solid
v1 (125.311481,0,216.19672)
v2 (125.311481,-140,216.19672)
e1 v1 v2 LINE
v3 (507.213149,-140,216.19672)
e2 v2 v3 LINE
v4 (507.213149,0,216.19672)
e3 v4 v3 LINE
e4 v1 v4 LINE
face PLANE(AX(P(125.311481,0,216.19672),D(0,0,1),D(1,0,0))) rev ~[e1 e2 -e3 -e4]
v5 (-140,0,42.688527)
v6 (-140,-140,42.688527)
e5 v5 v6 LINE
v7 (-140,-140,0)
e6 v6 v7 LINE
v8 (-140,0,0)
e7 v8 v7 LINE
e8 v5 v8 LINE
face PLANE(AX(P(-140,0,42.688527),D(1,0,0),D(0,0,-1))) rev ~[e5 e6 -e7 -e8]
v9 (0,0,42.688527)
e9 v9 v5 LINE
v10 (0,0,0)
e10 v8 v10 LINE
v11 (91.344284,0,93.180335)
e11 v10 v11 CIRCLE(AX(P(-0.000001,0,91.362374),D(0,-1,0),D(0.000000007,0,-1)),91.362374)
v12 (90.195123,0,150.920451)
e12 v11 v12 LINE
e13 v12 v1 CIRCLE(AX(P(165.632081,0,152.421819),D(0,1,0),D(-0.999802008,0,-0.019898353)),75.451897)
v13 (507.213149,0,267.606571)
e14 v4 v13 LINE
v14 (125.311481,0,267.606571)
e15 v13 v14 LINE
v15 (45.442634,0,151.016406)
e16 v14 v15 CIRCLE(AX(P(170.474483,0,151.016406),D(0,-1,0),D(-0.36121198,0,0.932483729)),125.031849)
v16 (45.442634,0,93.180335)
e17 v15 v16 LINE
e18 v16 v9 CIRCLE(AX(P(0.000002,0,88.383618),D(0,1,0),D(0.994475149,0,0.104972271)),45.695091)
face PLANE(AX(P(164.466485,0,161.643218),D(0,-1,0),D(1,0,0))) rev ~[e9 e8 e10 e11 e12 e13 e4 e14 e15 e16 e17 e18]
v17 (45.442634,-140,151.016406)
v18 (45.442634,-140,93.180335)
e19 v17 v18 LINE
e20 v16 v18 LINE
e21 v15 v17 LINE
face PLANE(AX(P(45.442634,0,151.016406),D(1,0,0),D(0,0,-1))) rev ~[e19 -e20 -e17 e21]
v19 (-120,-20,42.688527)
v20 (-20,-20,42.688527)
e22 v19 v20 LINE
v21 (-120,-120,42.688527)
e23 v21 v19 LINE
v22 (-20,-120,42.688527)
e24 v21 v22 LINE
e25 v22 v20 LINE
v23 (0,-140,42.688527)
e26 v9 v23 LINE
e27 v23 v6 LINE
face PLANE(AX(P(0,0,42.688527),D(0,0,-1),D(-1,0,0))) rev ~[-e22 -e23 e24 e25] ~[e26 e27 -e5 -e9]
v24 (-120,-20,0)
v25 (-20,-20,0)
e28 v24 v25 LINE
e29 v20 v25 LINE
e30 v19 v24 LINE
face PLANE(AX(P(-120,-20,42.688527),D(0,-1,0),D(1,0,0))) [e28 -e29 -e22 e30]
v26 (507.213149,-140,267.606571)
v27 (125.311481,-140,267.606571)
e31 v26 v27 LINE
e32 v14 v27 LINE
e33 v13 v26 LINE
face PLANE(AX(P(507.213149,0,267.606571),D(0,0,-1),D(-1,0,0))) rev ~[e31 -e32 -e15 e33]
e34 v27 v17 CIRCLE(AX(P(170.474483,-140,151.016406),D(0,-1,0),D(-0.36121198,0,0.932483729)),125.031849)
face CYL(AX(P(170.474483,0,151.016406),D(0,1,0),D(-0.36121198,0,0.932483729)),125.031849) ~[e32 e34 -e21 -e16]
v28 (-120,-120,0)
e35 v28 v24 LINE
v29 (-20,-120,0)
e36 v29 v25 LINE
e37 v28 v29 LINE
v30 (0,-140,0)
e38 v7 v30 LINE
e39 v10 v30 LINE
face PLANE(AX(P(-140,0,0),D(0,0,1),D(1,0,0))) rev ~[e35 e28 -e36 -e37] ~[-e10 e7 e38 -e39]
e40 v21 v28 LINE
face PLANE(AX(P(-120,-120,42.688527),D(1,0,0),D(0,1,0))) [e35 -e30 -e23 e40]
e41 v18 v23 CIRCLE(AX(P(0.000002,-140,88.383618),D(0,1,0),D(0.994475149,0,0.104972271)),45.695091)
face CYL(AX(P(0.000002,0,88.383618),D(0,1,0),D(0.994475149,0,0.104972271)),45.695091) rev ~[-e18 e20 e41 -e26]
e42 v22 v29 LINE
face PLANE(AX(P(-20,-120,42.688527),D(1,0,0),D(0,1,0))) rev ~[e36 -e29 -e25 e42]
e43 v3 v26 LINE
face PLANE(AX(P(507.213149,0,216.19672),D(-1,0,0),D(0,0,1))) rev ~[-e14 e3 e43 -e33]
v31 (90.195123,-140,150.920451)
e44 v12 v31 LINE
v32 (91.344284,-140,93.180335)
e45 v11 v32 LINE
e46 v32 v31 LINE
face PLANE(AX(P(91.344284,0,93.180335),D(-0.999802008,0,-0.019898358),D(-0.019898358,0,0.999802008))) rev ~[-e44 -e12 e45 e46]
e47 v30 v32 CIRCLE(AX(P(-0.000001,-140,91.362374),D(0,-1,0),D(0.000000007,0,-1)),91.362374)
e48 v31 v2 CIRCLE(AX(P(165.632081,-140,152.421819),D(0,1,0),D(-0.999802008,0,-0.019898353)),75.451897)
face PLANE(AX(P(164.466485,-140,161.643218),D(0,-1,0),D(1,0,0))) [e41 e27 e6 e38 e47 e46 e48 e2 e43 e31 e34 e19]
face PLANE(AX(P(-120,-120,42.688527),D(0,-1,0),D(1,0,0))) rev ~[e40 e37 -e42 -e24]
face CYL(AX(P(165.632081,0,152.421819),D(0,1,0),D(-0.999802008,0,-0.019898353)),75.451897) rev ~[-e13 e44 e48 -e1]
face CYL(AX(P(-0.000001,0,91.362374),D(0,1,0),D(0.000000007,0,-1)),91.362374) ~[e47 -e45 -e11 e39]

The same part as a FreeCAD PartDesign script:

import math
import FreeCAD as App
import Part
import Sketcher


def add_polygon(sketch, points):
    """Adds a closed chain of lines whose ends are joined by coincident constraints."""
    first, n = sketch.GeometryCount, len(points)
    for a, b in zip(points, points[1:] + points[:1]):
        sketch.addGeometry(Part.LineSegment(App.Vector(*a, 0), App.Vector(*b, 0)), False)
    for i in range(n):
        sketch.addConstraint(Sketcher.Constraint("Coincident", first + i, 2, first + (i + 1) % n, 1))

doc = App.newDocument("Part")
body = doc.addObject("PartDesign::Body", "Body")

sketch1 = body.newObject("Sketcher::SketchObject", "Sketch")
sketch1.AttachmentSupport = (doc.getObject("XZ_Plane"), [""])
sketch1.MapMode = "FlatFace"
sketch1.addGeometry(Part.LineSegment(App.Vector(0, 42.688527, 0), App.Vector(-140, 42.688527, 0)), False)
sketch1.addGeometry(Part.LineSegment(App.Vector(-140, 42.688527, 0), App.Vector(-140, 0, 0)), False)
sketch1.addGeometry(Part.LineSegment(App.Vector(-140, 0, 0), App.Vector(0, 0, 0)), False)
sketch1.addGeometry(Part.ArcOfCircle(Part.Circle(App.Vector(-0.000001, 91.362374, 0), App.Vector(0, 0, 1), 91.362374), math.radians(-90), math.radians(1.140167)), False)
sketch1.addGeometry(Part.LineSegment(App.Vector(91.344284, 93.180335, 0), App.Vector(90.195123, 150.920451, 0)), False)
sketch1.addGeometry(Part.ArcOfCircle(Part.Circle(App.Vector(165.632081, 152.421819, 0), App.Vector(0, 0, 1), 75.451897), math.radians(122.302427), math.radians(181.140167)), False)
sketch1.addGeometry(Part.LineSegment(App.Vector(125.311481, 216.19672, 0), App.Vector(507.213149, 216.19672, 0)), False)
sketch1.addGeometry(Part.LineSegment(App.Vector(507.213149, 216.19672, 0), App.Vector(507.213149, 267.606571, 0)), False)
sketch1.addGeometry(Part.LineSegment(App.Vector(507.213149, 267.606571, 0), App.Vector(125.311481, 267.606571, 0)), False)
sketch1.addGeometry(Part.ArcOfCircle(Part.Circle(App.Vector(170.474483, 151.016406, 0), App.Vector(0, 0, 1), 125.031849), math.radians(111.174647), math.radians(180)), False)
sketch1.addGeometry(Part.LineSegment(App.Vector(45.442634, 151.016406, 0), App.Vector(45.442634, 93.180335, 0)), False)
sketch1.addGeometry(Part.ArcOfCircle(Part.Circle(App.Vector(0.000002, 88.383618, 0), App.Vector(0, 0, 1), 45.695091), math.radians(-90.000002), math.radians(6.025569)), False)
sketch1.addConstraint(Sketcher.Constraint("Coincident", 0, 2, 1, 1))
sketch1.addConstraint(Sketcher.Constraint("Coincident", 1, 2, 2, 1))
sketch1.addConstraint(Sketcher.Constraint("Tangent", 2, 2, 3, 1))
sketch1.addConstraint(Sketcher.Constraint("Tangent", 3, 2, 4, 1))
sketch1.addConstraint(Sketcher.Constraint("Tangent", 4, 2, 5, 2))
sketch1.addConstraint(Sketcher.Constraint("Coincident", 5, 1, 6, 1))
sketch1.addConstraint(Sketcher.Constraint("Coincident", 6, 2, 7, 1))
sketch1.addConstraint(Sketcher.Constraint("Coincident", 7, 2, 8, 1))
sketch1.addConstraint(Sketcher.Constraint("Coincident", 8, 2, 9, 1))
sketch1.addConstraint(Sketcher.Constraint("Tangent", 9, 2, 10, 1))
sketch1.addConstraint(Sketcher.Constraint("Coincident", 10, 2, 11, 2))
sketch1.addConstraint(Sketcher.Constraint("Tangent", 11, 1, 0, 1))
sketch1.addConstraint(Sketcher.Constraint("Horizontal", 0))
sketch1.addConstraint(Sketcher.Constraint("Vertical", 1))
sketch1.addConstraint(Sketcher.Constraint("Horizontal", 2))
sketch1.addConstraint(Sketcher.Constraint("Horizontal", 6))
sketch1.addConstraint(Sketcher.Constraint("Vertical", 7))
sketch1.addConstraint(Sketcher.Constraint("Horizontal", 8))
sketch1.addConstraint(Sketcher.Constraint("Vertical", 10))
sketch1.addConstraint(Sketcher.Constraint("Coincident", 2, 2, -1, 1))
sketch1.addConstraint(Sketcher.Constraint("PointOnObject", 11, 3, -2))
sketch1.addConstraint(Sketcher.Constraint("Horizontal", 3, 2, 10, 2))
sketch1.addConstraint(Sketcher.Constraint("Vertical", 5, 1, 8, 2))
sketch1.addConstraint(Sketcher.Constraint("DistanceX", 0, 2, 0, 1, 140.0))
sketch1.addConstraint(Sketcher.Constraint("Radius", 9, 125.031849))
sketch1.addConstraint(Sketcher.Constraint("Radius", 11, 45.695091))
sketch1.addConstraint(Sketcher.Constraint("Radius", 3, 91.362374))
sketch1.addConstraint(Sketcher.Constraint("Radius", 5, 75.451897))
sketch1.addConstraint(Sketcher.Constraint("DistanceX", 5, 1, 9, 3, 45.163002))
sketch1.addConstraint(Sketcher.Constraint("DistanceY", 7, 1, 7, 2, 51.409851))
sketch1.addConstraint(Sketcher.Constraint("DistanceY", 10, 2, 10, 1, 57.836071))
sketch1.addConstraint(Sketcher.Constraint("DistanceX", 5, 3, 9, 3, 4.842402))
sketch1.addConstraint(Sketcher.Constraint("DistanceY", 11, 3, 5, 3, 64.038202))
sketch1.addConstraint(Sketcher.Constraint("DistanceX", 6, 1, 6, 2, 381.901668))
pad1 = body.newObject("PartDesign::Pad", "Pad")
pad1.Profile = sketch1
pad1.Length = 140

sketch2 = body.newObject("Sketcher::SketchObject", "Sketch001")
sketch2.AttachmentSupport = (doc.getObject("XY_Plane"), [""])
sketch2.MapMode = "FlatFace"
sketch2.AttachmentOffset = App.Placement(App.Vector(0, 0, 42.688527), App.Rotation())
add_polygon(sketch2, [(-120, -20), (-120, -120), (-20, -120), (-20, -20)])
sketch2.addConstraint(Sketcher.Constraint("Vertical", 0))
sketch2.addConstraint(Sketcher.Constraint("Horizontal", 1))
sketch2.addConstraint(Sketcher.Constraint("Vertical", 2))
sketch2.addConstraint(Sketcher.Constraint("Horizontal", 3))
sketch2.addConstraint(Sketcher.Constraint("Equal", 3, 0))
sketch2.addConstraint(Sketcher.Constraint("DistanceX", 1, 1, 1, 2, 100.0))
sketch2.addConstraint(Sketcher.Constraint("DistanceX", 0, 2, -1, 1, 120.0))
sketch2.addConstraint(Sketcher.Constraint("DistanceY", 0, 2, -1, 1, 120.0))
pocket1 = body.newObject("PartDesign::Pocket", "Pocket")
pocket1.Profile = sketch2
pocket1.Type = "ThroughAll"

doc.recompute()
